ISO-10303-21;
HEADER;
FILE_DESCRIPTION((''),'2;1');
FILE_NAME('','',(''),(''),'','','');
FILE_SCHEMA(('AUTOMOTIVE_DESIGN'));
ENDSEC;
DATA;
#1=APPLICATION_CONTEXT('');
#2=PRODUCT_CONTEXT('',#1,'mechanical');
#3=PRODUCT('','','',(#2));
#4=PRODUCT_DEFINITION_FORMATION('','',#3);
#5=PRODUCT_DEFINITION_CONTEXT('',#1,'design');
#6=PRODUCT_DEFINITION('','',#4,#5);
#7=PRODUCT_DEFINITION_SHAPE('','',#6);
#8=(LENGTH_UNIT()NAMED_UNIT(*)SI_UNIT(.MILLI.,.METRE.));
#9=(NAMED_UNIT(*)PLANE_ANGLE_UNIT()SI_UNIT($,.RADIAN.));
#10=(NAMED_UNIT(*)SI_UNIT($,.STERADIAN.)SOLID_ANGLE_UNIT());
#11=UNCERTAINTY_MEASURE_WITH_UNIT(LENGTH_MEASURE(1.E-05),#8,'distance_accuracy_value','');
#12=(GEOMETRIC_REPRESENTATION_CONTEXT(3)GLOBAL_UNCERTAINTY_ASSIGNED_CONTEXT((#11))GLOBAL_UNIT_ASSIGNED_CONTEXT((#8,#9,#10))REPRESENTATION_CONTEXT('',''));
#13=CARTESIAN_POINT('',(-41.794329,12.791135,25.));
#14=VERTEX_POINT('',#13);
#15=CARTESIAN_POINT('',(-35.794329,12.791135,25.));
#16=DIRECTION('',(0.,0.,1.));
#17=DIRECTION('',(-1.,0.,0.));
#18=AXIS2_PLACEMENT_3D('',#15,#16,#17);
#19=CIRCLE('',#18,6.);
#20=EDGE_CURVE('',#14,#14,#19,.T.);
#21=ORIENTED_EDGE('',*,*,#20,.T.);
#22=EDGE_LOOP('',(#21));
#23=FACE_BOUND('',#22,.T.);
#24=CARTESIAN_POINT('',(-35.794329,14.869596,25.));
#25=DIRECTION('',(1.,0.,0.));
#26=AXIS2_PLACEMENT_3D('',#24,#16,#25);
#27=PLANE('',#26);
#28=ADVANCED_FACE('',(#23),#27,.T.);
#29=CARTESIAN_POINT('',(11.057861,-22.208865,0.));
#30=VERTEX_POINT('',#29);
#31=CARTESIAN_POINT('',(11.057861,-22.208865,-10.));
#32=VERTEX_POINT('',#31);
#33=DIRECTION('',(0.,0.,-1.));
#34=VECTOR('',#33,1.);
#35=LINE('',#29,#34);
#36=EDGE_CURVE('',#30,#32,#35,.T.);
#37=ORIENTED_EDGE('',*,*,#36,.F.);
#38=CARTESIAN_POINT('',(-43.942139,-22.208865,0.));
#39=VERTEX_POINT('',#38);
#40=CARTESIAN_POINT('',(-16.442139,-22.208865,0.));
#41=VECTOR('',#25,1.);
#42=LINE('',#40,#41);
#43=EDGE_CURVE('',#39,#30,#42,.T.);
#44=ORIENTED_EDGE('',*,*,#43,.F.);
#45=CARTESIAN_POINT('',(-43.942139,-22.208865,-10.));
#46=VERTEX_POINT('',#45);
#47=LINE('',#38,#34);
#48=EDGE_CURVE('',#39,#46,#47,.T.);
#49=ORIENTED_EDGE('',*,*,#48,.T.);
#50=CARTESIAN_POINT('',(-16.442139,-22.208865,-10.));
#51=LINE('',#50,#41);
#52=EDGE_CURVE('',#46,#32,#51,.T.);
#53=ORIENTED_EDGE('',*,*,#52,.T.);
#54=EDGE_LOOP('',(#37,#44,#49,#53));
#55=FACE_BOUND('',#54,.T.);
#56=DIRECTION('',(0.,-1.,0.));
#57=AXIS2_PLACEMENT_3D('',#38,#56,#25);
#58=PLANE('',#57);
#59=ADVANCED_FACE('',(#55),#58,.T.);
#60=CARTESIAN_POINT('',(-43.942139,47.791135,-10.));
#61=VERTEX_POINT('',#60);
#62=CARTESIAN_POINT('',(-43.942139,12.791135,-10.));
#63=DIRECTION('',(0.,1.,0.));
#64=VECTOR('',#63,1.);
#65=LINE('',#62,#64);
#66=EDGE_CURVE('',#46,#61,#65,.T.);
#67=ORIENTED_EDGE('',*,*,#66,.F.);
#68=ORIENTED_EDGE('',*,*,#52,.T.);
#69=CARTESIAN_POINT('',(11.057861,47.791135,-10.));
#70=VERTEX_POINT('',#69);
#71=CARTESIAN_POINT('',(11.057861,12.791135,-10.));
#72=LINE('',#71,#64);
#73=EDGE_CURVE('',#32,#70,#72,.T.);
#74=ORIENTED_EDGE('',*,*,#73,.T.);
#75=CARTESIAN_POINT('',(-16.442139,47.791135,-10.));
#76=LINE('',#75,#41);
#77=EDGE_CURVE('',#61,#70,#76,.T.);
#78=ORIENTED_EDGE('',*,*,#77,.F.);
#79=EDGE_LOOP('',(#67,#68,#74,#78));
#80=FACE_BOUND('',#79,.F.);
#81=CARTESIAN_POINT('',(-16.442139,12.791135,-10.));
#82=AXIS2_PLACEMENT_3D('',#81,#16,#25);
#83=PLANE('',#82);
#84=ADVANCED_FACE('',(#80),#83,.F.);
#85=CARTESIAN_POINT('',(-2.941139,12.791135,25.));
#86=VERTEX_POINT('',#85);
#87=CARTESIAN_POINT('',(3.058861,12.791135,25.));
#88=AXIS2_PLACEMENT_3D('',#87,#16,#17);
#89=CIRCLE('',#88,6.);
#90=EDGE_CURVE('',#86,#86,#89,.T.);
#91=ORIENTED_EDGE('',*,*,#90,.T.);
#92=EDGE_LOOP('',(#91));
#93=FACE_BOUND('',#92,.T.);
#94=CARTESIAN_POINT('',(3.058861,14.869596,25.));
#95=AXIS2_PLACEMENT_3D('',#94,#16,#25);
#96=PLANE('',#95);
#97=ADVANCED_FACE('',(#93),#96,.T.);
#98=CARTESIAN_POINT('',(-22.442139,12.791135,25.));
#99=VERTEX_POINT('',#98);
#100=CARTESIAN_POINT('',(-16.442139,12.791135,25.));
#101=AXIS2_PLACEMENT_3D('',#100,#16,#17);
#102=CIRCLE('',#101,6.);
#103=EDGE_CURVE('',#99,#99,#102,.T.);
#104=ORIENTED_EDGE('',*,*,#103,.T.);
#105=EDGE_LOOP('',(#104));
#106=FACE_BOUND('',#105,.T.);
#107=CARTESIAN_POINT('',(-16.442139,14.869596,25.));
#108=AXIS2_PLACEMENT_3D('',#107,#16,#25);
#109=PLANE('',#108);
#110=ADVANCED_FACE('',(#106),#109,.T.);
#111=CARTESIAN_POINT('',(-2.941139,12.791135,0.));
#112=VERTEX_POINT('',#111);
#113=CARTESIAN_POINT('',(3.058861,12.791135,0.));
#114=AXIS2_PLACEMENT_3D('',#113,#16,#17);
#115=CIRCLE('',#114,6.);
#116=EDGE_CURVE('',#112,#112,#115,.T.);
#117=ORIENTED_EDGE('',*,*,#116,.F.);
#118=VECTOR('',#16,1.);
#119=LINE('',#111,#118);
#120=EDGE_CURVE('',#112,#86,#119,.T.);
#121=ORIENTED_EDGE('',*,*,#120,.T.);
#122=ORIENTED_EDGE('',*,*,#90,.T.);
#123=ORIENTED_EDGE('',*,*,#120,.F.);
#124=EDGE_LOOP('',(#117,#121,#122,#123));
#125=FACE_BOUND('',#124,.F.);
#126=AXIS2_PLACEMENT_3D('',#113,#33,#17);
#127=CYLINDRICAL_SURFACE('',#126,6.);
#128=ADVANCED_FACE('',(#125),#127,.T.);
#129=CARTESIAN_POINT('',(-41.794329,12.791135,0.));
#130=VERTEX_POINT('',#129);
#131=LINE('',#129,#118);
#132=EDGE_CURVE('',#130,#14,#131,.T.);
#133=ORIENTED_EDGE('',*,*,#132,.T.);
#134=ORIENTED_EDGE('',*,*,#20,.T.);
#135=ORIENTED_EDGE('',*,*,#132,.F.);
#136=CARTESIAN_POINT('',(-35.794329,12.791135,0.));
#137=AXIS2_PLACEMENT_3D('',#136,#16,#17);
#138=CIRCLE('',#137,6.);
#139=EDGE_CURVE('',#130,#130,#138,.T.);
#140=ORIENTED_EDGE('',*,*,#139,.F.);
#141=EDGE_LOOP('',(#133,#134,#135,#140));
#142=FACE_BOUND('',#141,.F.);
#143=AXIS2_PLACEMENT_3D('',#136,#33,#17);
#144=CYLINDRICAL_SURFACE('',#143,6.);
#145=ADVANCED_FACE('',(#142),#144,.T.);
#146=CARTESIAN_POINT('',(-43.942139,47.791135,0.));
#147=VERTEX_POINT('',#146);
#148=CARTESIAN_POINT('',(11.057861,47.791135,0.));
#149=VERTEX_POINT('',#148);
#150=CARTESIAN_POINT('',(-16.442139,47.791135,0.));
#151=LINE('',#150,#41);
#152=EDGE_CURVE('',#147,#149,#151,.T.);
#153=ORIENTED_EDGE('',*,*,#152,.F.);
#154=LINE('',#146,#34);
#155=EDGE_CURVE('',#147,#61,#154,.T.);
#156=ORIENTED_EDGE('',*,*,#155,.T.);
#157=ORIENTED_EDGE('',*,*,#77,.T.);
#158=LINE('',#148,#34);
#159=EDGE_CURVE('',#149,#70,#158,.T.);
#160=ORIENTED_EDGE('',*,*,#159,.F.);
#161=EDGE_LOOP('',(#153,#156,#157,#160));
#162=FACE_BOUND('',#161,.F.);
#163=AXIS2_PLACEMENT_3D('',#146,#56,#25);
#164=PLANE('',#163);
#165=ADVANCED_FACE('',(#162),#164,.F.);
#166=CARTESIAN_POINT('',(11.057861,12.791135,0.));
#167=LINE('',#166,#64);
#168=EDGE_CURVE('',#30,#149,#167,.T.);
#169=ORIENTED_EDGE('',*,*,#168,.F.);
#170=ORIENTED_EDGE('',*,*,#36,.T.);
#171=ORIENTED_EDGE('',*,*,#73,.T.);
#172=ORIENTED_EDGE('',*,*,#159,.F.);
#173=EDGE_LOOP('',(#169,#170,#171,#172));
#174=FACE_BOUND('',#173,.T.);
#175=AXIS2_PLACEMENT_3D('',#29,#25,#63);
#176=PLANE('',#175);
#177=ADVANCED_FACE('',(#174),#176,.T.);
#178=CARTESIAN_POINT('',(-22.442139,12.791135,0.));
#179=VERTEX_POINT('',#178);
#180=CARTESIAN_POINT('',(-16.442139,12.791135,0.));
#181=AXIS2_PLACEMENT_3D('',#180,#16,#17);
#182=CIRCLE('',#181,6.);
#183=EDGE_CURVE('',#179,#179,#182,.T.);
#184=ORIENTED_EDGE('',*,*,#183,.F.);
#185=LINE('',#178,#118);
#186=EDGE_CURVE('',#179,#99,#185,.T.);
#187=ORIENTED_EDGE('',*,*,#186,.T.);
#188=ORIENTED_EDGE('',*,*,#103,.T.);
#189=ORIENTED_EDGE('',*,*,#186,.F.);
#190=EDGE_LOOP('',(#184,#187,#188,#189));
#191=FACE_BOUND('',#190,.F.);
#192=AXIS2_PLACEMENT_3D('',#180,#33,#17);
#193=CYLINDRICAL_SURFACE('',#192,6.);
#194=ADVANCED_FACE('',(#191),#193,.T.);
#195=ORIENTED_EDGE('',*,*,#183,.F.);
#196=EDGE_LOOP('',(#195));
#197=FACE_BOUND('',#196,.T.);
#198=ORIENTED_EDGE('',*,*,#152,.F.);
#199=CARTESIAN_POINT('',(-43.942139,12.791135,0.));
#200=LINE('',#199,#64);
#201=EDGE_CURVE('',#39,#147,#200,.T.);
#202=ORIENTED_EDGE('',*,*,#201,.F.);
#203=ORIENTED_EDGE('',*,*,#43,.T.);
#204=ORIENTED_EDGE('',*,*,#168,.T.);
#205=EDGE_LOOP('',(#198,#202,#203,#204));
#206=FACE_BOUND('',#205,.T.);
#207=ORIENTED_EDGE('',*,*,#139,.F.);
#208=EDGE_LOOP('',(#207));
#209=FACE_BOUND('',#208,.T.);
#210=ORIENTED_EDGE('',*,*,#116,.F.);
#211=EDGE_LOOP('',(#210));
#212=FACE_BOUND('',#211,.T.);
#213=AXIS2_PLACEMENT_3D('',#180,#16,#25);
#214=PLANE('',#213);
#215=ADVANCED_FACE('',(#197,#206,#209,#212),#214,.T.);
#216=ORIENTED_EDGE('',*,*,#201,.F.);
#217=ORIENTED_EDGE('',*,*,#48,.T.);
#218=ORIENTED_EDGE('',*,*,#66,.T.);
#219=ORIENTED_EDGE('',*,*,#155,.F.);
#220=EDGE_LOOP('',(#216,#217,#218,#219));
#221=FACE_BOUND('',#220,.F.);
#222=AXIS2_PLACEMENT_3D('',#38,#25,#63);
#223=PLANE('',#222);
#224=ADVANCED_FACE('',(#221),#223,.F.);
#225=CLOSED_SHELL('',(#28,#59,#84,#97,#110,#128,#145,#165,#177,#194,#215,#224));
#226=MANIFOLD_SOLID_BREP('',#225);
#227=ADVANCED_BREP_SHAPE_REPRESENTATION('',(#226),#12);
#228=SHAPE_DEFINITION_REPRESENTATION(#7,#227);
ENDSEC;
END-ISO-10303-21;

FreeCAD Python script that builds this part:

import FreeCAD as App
import Part
import Sketcher
Q = App.Units.Quantity


def add_polygon(sketch, points):
    """Adds a closed chain of lines whose ends are joined by coincident constraints."""
    first, n = sketch.GeometryCount, len(points)
    for a, b in zip(points, points[1:] + points[:1]):
        sketch.addGeometry(Part.LineSegment(App.Vector(*a, 0), App.Vector(*b, 0)), False)
    for i in range(n):
        sketch.addConstraint(Sketcher.Constraint("Coincident", first + i, 2, first + (i + 1) % n, 1))

doc = App.newDocument("Part")
body = doc.addObject("PartDesign::Body", "Body")

# Sketch on XY plane
sketch1 = body.newObject("Sketcher::SketchObject", "Sketch")
sketch1.AttachmentSupport = (doc.getObject("XY_Plane"), [""])
sketch1.MapMode = "FlatFace"
add_polygon(sketch1, [(-44, 48), (-44, -22), (11, -22), (11, 48)])  # lines 0-3
sketch1.addConstraint(Sketcher.Constraint("Vertical", 0))
sketch1.addConstraint(Sketcher.Constraint("Horizontal", 1))
sketch1.addConstraint(Sketcher.Constraint("Vertical", 2))
sketch1.addConstraint(Sketcher.Constraint("Horizontal", 3))
sketch1.addConstraint(Sketcher.Constraint("DistanceX", 1, 1, 1, 2, Q("55 mm")))
sketch1.addConstraint(Sketcher.Constraint("DistanceY", 0, 2, 0, 1, Q("70 mm")))
sketch1.addConstraint(Sketcher.Constraint("DistanceX", 0, 2, -1, 1, Q("43.942139 mm")))
sketch1.addConstraint(Sketcher.Constraint("DistanceY", 0, 2, -1, 1, Q("22.208865 mm")))
pad1 = body.newObject("PartDesign::Pad", "Pad")
pad1.Profile = sketch1
pad1.Length = 10
pad1.Reversed = True

# Sketch on XY plane
sketch2 = body.newObject("Sketcher::SketchObject", "Sketch001")
sketch2.AttachmentSupport = (doc.getObject("XY_Plane"), [""])
sketch2.MapMode = "FlatFace"
sketch2.addGeometry(Part.Circle(App.Vector(-36, 13, 0), App.Vector(0, 0, 1), 6), False)
sketch2.addGeometry(Part.Circle(App.Vector(-16, 13, 0), App.Vector(0, 0, 1), 6), False)
sketch2.addGeometry(Part.Circle(App.Vector(3, 13, 0), App.Vector(0, 0, 1), 6), False)
sketch2.addConstraint(Sketcher.Constraint("Equal", 0, 1))
sketch2.addConstraint(Sketcher.Constraint("Equal", 1, 2))
sketch2.addConstraint(Sketcher.Constraint("Horizontal", 0, 3, 1, 3))
sketch2.addConstraint(Sketcher.Constraint("Horizontal", 1, 3, 2, 3))
sketch2.addConstraint(Sketcher.Constraint("Diameter", 0, Q("12 mm")))
sketch2.addConstraint(Sketcher.Constraint("DistanceX", 1, 3, 2, 3, Q("19.501 mm")))
sketch2.addConstraint(Sketcher.Constraint("DistanceX", 0, 3, -1, 1, Q("35.794329 mm")))
sketch2.addConstraint(Sketcher.Constraint("DistanceX", 1, 3, -1, 1, Q("16.442139 mm")))
sketch2.addConstraint(Sketcher.Constraint("DistanceY", -1, 1, 0, 3, Q("12.791135 mm")))
pad2 = body.newObject("PartDesign::Pad", "Pad001")
pad2.Profile = sketch2
pad2.Length = 25

doc.recompute()
